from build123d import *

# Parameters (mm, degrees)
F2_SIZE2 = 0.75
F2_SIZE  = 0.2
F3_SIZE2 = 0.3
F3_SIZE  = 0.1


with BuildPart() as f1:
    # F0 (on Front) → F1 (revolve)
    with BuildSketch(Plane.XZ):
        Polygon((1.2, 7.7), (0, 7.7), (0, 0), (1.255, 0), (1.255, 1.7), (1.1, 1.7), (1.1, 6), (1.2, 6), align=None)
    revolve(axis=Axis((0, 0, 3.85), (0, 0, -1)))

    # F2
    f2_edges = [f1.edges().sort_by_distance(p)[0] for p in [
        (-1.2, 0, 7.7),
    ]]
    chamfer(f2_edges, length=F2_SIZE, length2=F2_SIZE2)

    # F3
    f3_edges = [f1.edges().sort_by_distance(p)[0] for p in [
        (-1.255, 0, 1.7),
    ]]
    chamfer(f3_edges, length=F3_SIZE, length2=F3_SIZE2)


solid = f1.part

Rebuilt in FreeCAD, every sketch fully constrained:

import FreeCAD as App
import Part
import Sketcher

V = App.Vector
Q = App.Units.Quantity


def edges_at(feature, points):
    """Names of the edges that pass closest to the given points."""
    edges = feature.Shape.Edges
    near = lambda p: min(range(len(edges)), key=lambda i: edges[i].distToShape(Part.Vertex(*p))[0])
    return sorted({f"Edge{near(p) + 1}" for p in points})


def add_polygon(sketch, points):
    """Adds a closed chain of lines whose ends are joined by coincident constraints."""
    first, n = sketch.GeometryCount, len(points)
    for a, b in zip(points, points[1:] + points[:1]):
        sketch.addGeometry(Part.LineSegment(App.Vector(*a, 0), App.Vector(*b, 0)), False)
    for i in range(n):
        sketch.addConstraint(Sketcher.Constraint("Coincident", first + i, 2, first + (i + 1) % n, 1))

doc = App.newDocument("Part")
params = doc.addObject("Spreadsheet::Sheet", "Params")
for row, (alias, value) in enumerate([
    ("sketch1_width", "1.2 mm"),
    ("sketch1_width2", "0.1 mm"),
    ("sketch1_height", "7.7 mm"),
    ("sketch1_height2", "1.7 mm"),
    ("revolution_angle", "360 deg"),
    ("chamfer_size", "0.2 mm"),
    ("chamfer_size2", "0.75 mm"),
    ("chamfer2_size", "0.1 mm"),
    ("chamfer2_size2", "0.3 mm"),
], start=1):
    params.set(f"A{row}", alias)
    params.set(f"B{row}", "=" + value)
    params.setAlias(f"B{row}", alias)

body = doc.addObject("PartDesign::Body", "Body")

sketch1 = doc.addObject("Sketcher::SketchObject", "Sketch")
body.addObject(sketch1)
sketch1.AttachmentSupport = (doc.XZ_Plane, [""])
sketch1.MapMode = "FlatFace"
add_polygon(sketch1, [(1.2, 7.7), (0, 7.7), (0, 0), (1.25, 0), (1.25, 1.7), (1.1, 1.7), (1.1, 6), (1.2, 6)])
sketch1.addConstraint([
    Sketcher.Constraint("Horizontal", 0),
    Sketcher.Constraint("Vertical", 1),
    Sketcher.Constraint("Horizontal", 2),
    Sketcher.Constraint("Vertical", 3),
    Sketcher.Constraint("Horizontal", 4),
    Sketcher.Constraint("Vertical", 5),
    Sketcher.Constraint("Horizontal", 6),
    Sketcher.Constraint("Vertical", 7),
    Sketcher.Constraint("Coincident", 1, 2, -1, 1),
    Sketcher.Constraint("Equal", 3, 7),
    Sketcher.Constraint("DistanceX", 0, 2, 0, 1, Q("1.2 mm")),
    Sketcher.Constraint("DistanceX", 6, 1, 6, 2, Q("0.1 mm")),
    Sketcher.Constraint("DistanceY", 1, 2, 1, 1, Q("7.7 mm")),
    Sketcher.Constraint("DistanceY", 3, 1, 3, 2, Q("1.7 mm")),
    Sketcher.Constraint("DistanceX", 2, 1, 2, 2, Q("1.255 mm")),
])
sketch1.setExpression("Constraints[18]", "Params.sketch1_width")
sketch1.setExpression("Constraints[19]", "Params.sketch1_width2")
sketch1.setExpression("Constraints[20]", "Params.sketch1_height")
sketch1.setExpression("Constraints[21]", "Params.sketch1_height2")
revolution = doc.addObject("PartDesign::Revolution", "Revolution")
body.addObject(revolution)
revolution.Profile = sketch1
revolution.ReferenceAxis = (sketch1, ["V_Axis"])
revolution.setExpression("Angle", "Params.revolution_angle")
doc.recompute()

chamfer = doc.addObject("PartDesign::Chamfer", "Chamfer")
body.addObject(chamfer)
chamfer.Base = (revolution, edges_at(revolution, [(-1.2, 0, 7.7)]))
chamfer.ChamferType = "Two distances"
chamfer.setExpression("Size", "Params.chamfer_size")
chamfer.setExpression("Size2", "Params.chamfer_size2")
doc.recompute()

chamfer2 = doc.addObject("PartDesign::Chamfer", "Chamfer001")
body.addObject(chamfer2)
chamfer2.Base = (chamfer, edges_at(chamfer, [(-1.255, 0, 1.7)]))
chamfer2.ChamferType = "Two distances"
chamfer2.setExpression("Size", "Params.chamfer2_size")
chamfer2.setExpression("Size2", "Params.chamfer2_size2")

doc.recompute()
